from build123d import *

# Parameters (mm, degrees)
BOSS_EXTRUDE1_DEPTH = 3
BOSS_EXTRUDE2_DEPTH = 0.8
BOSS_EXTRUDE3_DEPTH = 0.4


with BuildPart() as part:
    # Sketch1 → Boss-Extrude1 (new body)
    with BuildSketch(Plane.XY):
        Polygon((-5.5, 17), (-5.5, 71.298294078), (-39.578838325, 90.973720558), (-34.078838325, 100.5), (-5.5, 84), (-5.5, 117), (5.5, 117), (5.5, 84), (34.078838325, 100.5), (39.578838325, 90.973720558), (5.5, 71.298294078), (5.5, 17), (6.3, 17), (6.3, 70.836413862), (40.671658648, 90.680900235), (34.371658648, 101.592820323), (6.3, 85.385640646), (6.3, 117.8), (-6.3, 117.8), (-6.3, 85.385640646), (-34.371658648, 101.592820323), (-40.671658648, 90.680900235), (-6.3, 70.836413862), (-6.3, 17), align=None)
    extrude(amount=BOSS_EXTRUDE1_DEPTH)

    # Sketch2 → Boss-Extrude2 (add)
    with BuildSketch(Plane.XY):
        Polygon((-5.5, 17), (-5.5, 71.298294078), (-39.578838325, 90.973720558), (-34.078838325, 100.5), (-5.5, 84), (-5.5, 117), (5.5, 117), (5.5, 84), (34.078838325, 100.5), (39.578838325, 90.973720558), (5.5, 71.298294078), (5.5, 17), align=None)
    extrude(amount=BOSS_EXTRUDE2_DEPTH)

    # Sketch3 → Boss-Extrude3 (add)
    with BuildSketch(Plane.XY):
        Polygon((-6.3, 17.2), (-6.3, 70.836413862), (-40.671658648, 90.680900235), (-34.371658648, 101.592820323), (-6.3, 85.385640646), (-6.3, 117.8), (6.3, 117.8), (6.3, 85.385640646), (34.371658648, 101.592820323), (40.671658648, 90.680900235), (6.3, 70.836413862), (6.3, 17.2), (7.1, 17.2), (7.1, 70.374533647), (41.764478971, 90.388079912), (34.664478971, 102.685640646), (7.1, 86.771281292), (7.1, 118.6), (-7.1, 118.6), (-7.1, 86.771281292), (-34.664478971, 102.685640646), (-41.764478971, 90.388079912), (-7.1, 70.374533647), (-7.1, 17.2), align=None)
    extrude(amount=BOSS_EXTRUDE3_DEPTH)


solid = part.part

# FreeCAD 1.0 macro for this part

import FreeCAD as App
import Part
import Sketcher
Q = App.Units.Quantity


def add_polygon(sketch, points):
    """Adds a closed chain of lines whose ends are joined by coincident constraints."""
    first, n = sketch.GeometryCount, len(points)
    for a, b in zip(points, points[1:] + points[:1]):
        sketch.addGeometry(Part.LineSegment(App.Vector(*a, 0), App.Vector(*b, 0)), False)
    for i in range(n):
        sketch.addConstraint(Sketcher.Constraint("Coincident", first + i, 2, first + (i + 1) % n, 1))

doc = App.newDocument("Part")
params = doc.addObject("Spreadsheet::Sheet", "Params")
for row, (alias, value) in enumerate([
    ("sketch1_width", "11 mm"),
    ("sketch1_height", "33 mm"),
    ("sketch1_length", "11 mm"),
    ("sketch1_length2", "33 mm"),
    ("sketch1_width2", "0.8 mm"),
    ("pad1_length", "3 mm"),
    ("sketch2_width", "11 mm"),
    ("sketch2_height", "33 mm"),
    ("sketch2_length", "11 mm"),
    ("sketch2_length2", "33 mm"),
    ("pad2_length", "0.8 mm"),
    ("sketch3_width", "12.6 mm"),
    ("sketch3_width2", "0.8 mm"),
    ("sketch3_length", "12.6 mm"),
    ("sketch3_length2", "14.2 mm"),
    ("pad3_length", "0.4 mm"),
], start=1):
    params.set(f"A{row}", alias)
    params.set(f"B{row}", "=" + value)
    params.setAlias(f"B{row}", alias)

body = doc.addObject("PartDesign::Body", "Body")

# Sketch on XY plane
sketch1 = body.newObject("Sketcher::SketchObject", "Sketch")
sketch1.AttachmentSupport = (doc.getObject("XY_Plane"), [""])
sketch1.MapMode = "FlatFace"
add_polygon(sketch1, [(-5.5, 17), (-5.5, 71.3), (-39.6, 91), (-34.1, 100.5), (-5.5, 84), (-5.5, 117), (5.5, 117), (5.5, 84), (34.1, 100.5), (39.6, 91), (5.5, 71.3), (5.5, 17), (6.3, 17), (6.3, 70.8), (40.7, 90.7), (34.4, 101.6), (6.3, 85.4), (6.3, 117.8), (-6.3, 117.8), (-6.3, 85.4), (-34.4, 101.6), (-40.7, 90.7), (-6.3, 70.8), (-6.3, 17)])  # lines 0-23
sketch1.addConstraint([
    Sketcher.Constraint("Vertical", 0),
    Sketcher.Constraint("Vertical", 4),
    Sketcher.Constraint("Horizontal", 5),
    Sketcher.Constraint("Vertical", 6),
    Sketcher.Constraint("Vertical", 10),
    Sketcher.Constraint("Horizontal", 11),
    Sketcher.Constraint("Vertical", 12),
    Sketcher.Constraint("Vertical", 16),
    Sketcher.Constraint("Horizontal", 17),
    Sketcher.Constraint("Vertical", 18),
    Sketcher.Constraint("Vertical", 22),
    Sketcher.Constraint("Horizontal", 23),
    Sketcher.Constraint("Symmetric", 3, 2, 6, 2, -2),
    Sketcher.Constraint("Symmetric", 2, 2, 7, 2, -2),
    Sketcher.Constraint("Symmetric", 1, 2, 8, 2, -2),
    Sketcher.Constraint("Symmetric", 0, 2, 9, 2, -2),
    Sketcher.Constraint("Symmetric", 15, 2, 18, 2, -2),
    Sketcher.Constraint("Symmetric", 14, 2, 19, 2, -2),
    Sketcher.Constraint("Symmetric", 13, 2, 20, 2, -2),
    Sketcher.Constraint("Symmetric", 12, 2, 21, 2, -2),
    Sketcher.Constraint("Perpendicular", 1, 2),
    Sketcher.Constraint("Perpendicular", 2, 3),
    Sketcher.Constraint("Parallel", 9, 13),
    Sketcher.Constraint("Perpendicular", 13, 14),
    Sketcher.Constraint("Perpendicular", 14, 15),
    Sketcher.Constraint("Horizontal", 11, 2, 22, 2),
    Sketcher.Constraint("Vertical", 0, 2, 3, 2),
    Sketcher.Constraint("Vertical", 12, 2, 15, 2),
    Sketcher.Constraint("DistanceX", 5, 1, 5, 2, Q("11 mm")),
    Sketcher.Constraint("DistanceY", 4, 1, 4, 2, Q("33 mm")),
    Sketcher.Constraint("Angle", 1, Q("150 deg")),
    Sketcher.Constraint("Distance", 2, Q("11 mm")),
    Sketcher.Constraint("Distance", 3, Q("33 mm")),
    Sketcher.Constraint("DistanceX", 11, 1, 11, 2, Q("0.8 mm")),
    Sketcher.Constraint("DistanceY", -1, 1, 3, 2, Q("84 mm")),
    Sketcher.Constraint("DistanceY", -1, 1, 10, 2, Q("17 mm")),
    Sketcher.Constraint("Distance", 14, Q("12.6 mm")),
    Sketcher.Constraint("DistanceY", -1, 1, 16, 2, Q("117.8 mm")),
    Sketcher.Constraint("DistanceY", 16, 1, 16, 2, Q("32.414359 mm")),
    Sketcher.Constraint("DistanceY", -1, 1, 13, 2, Q("90.6809 mm")),
])
sketch1.setExpression("Constraints[52]", "Params.sketch1_width")
sketch1.setExpression("Constraints[53]", "Params.sketch1_height")
sketch1.setExpression("Constraints[55]", "Params.sketch1_length")
sketch1.setExpression("Constraints[56]", "Params.sketch1_length2")
sketch1.setExpression("Constraints[57]", "Params.sketch1_width2")
pad1 = body.newObject("PartDesign::Pad", "Pad")
pad1.Profile = sketch1
pad1.setExpression("Length", "Params.pad1_length")

# Sketch on XY plane
sketch2 = body.newObject("Sketcher::SketchObject", "Sketch001")
sketch2.AttachmentSupport = (doc.getObject("XY_Plane"), [""])
sketch2.MapMode = "FlatFace"
add_polygon(sketch2, [(-6, 71), (-6, 17), (6, 17), (6, 71), (40, 91), (34, 100), (6, 84), (6, 117), (-6, 117), (-6, 84), (-34, 100), (-40, 91)])  # lines 0-11
sketch2.addConstraint([
    Sketcher.Constraint("Vertical", 0),
    Sketcher.Constraint("Horizontal", 1),
    Sketcher.Constraint("Vertical", 2),
    Sketcher.Constraint("Vertical", 6),
    Sketcher.Constraint("Horizontal", 7),
    Sketcher.Constraint("Vertical", 8),
    Sketcher.Constraint("Symmetric", 5, 2, 8, 2, -2),
    Sketcher.Constraint("Symmetric", 4, 2, 9, 2, -2),
    Sketcher.Constraint("Symmetric", 3, 2, 10, 2, -2),
    Sketcher.Constraint("Symmetric", 2, 2, 11, 2, -2),
    Sketcher.Constraint("Perpendicular", 3, 4),
    Sketcher.Constraint("Perpendicular", 4, 5),
    Sketcher.Constraint("Vertical", 2, 2, 5, 2),
    Sketcher.Constraint("DistanceX", 1, 1, 1, 2, Q("11 mm")),
    Sketcher.Constraint("DistanceY", 6, 1, 6, 2, Q("33 mm")),
    Sketcher.Constraint("Angle", 3, Q("30 deg")),
    Sketcher.Constraint("Distance", 4, Q("11 mm")),
    Sketcher.Constraint("Distance", 5, Q("33 mm")),
    Sketcher.Constraint("DistanceY", -1, 1, 0, 2, Q("17 mm")),
    Sketcher.Constraint("DistanceY", -1, 1, 5, 2, Q("84 mm")),
])
sketch2.setExpression("Constraints[25]", "Params.sketch2_width")
sketch2.setExpression("Constraints[26]", "Params.sketch2_height")
sketch2.setExpression("Constraints[28]", "Params.sketch2_length")
sketch2.setExpression("Constraints[29]", "Params.sketch2_length2")
pad2 = body.newObject("PartDesign::Pad", "Pad001")
pad2.Profile = sketch2
pad2.setExpression("Length", "Params.pad2_length")

# Sketch on XY plane
sketch3 = body.newObject("Sketcher::SketchObject", "Sketch002")
sketch3.AttachmentSupport = (doc.getObject("XY_Plane"), [""])
sketch3.MapMode = "FlatFace"
add_polygon(sketch3, [(-6.3, 17.2), (-6.3, 70.8), (-40.7, 90.7), (-34.4, 101.6), (-6.3, 85.4), (-6.3, 117.8), (6.3, 117.8), (6.3, 85.4), (34.4, 101.6), (40.7, 90.7), (6.3, 70.8), (6.3, 17.2), (7.1, 17.2), (7.1, 70.4), (41.8, 90.4), (34.7, 102.7), (7.1, 86.8), (7.1, 118.6), (-7.1, 118.6), (-7.1, 86.8), (-34.7, 102.7), (-41.8, 90.4), (-7.1, 70.4), (-7.1, 17.2)])  # lines 0-23
sketch3.addConstraint([
    Sketcher.Constraint("Vertical", 0),
    Sketcher.Constraint("Vertical", 4),
    Sketcher.Constraint("Horizontal", 5),
    Sketcher.Constraint("Vertical", 6),
    Sketcher.Constraint("Vertical", 10),
    Sketcher.Constraint("Horizontal", 11),
    Sketcher.Constraint("Vertical", 12),
    Sketcher.Constraint("Vertical", 16),
    Sketcher.Constraint("Horizontal", 17),
    Sketcher.Constraint("Vertical", 18),
    Sketcher.Constraint("Vertical", 22),
    Sketcher.Constraint("Horizontal", 23),
    Sketcher.Constraint("Symmetric", 3, 2, 6, 2, -2),
    Sketcher.Constraint("Symmetric", 2, 2, 7, 2, -2),
    Sketcher.Constraint("Symmetric", 1, 2, 8, 2, -2),
    Sketcher.Constraint("Symmetric", 0, 2, 9, 2, -2),
    Sketcher.Constraint("Symmetric", 15, 2, 18, 2, -2),
    Sketcher.Constraint("Symmetric", 14, 2, 19, 2, -2),
    Sketcher.Constraint("Symmetric", 13, 2, 20, 2, -2),
    Sketcher.Constraint("Symmetric", 12, 2, 21, 2, -2),
    Sketcher.Constraint("Perpendicular", 1, 2),
    Sketcher.Constraint("Perpendicular", 2, 3),
    Sketcher.Constraint("Parallel", 9, 13),
    Sketcher.Constraint("Perpendicular", 13, 14),
    Sketcher.Constraint("Perpendicular", 14, 15),
    Sketcher.Constraint("Horizontal", 11, 2, 22, 2),
    Sketcher.Constraint("Vertical", 0, 2, 3, 2),
    Sketcher.Constraint("Vertical", 12, 2, 15, 2),
    Sketcher.Constraint("Angle", 1, Q("150 deg")),
    Sketcher.Constraint("DistanceX", 5, 1, 5, 2, Q("12.6 mm")),
    Sketcher.Constraint("DistanceX", 11, 1, 11, 2, Q("0.8 mm")),
    Sketcher.Constraint("Distance", 2, Q("12.6 mm")),
    Sketcher.Constraint("Distance", 14, Q("14.2 mm")),
    Sketcher.Constraint("DistanceY", -1, 1, 4, 2, Q("117.8 mm")),
    Sketcher.Constraint("DistanceY", -1, 1, 10, 2, Q("17.2 mm")),
    Sketcher.Constraint("DistanceY", -1, 1, 16, 2, Q("118.6 mm")),
    Sketcher.Constraint("DistanceY", 6, 2, 14, 2, Q("17.3 mm")),
    Sketcher.Constraint("DistanceY", 4, 1, 4, 2, Q("32.414359 mm")),
    Sketcher.Constraint("DistanceY", 16, 1, 16, 2, Q("31.828719 mm")),
    Sketcher.Constraint("DistanceY", -1, 1, 1, 2, Q("90.6809 mm")),
])
sketch3.setExpression("Constraints[53]", "Params.sketch3_width")
sketch3.setExpression("Constraints[54]", "Params.sketch3_width2")
sketch3.setExpression("Constraints[55]", "Params.sketch3_length")
sketch3.setExpression("Constraints[56]", "Params.sketch3_length2")
pad3 = body.newObject("PartDesign::Pad", "Pad002")
pad3.Profile = sketch3
pad3.setExpression("Length", "Params.pad3_length")

doc.recompute()
